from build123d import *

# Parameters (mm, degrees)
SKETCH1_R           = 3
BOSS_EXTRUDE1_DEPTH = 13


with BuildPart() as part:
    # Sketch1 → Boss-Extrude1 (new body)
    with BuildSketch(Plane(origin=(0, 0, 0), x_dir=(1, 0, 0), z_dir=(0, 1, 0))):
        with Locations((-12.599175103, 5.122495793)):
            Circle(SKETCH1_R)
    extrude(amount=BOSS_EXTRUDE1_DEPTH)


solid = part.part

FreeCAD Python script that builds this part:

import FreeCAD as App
import Part
import Sketcher

V = App.Vector

doc = App.newDocument("Part")
body = doc.addObject("PartDesign::Body", "Body")

# Sketch on XZ plane
sketch1 = body.newObject("Sketcher::SketchObject", "Sketch")
sketch1.AttachmentSupport = (doc.getObject("XZ_Plane"), [""])
sketch1.MapMode = "FlatFace"
sketch1.addGeometry(Part.Circle(V(-12.599175, -5.122496, 0), V(0, 0, 1), 3), False)
sketch1.addConstraint([
    Sketcher.Constraint("Diameter", 0, 6.0),
    Sketcher.Constraint("DistanceX", 0, 3, -1, 1, 12.599175),
    Sketcher.Constraint("DistanceY", 0, 3, -1, 1, 5.122496),
])
pad1 = body.newObject("PartDesign::Pad", "Pad")
pad1.Profile = sketch1
pad1.Length = 13
pad1.Reversed = True

doc.recompute()
